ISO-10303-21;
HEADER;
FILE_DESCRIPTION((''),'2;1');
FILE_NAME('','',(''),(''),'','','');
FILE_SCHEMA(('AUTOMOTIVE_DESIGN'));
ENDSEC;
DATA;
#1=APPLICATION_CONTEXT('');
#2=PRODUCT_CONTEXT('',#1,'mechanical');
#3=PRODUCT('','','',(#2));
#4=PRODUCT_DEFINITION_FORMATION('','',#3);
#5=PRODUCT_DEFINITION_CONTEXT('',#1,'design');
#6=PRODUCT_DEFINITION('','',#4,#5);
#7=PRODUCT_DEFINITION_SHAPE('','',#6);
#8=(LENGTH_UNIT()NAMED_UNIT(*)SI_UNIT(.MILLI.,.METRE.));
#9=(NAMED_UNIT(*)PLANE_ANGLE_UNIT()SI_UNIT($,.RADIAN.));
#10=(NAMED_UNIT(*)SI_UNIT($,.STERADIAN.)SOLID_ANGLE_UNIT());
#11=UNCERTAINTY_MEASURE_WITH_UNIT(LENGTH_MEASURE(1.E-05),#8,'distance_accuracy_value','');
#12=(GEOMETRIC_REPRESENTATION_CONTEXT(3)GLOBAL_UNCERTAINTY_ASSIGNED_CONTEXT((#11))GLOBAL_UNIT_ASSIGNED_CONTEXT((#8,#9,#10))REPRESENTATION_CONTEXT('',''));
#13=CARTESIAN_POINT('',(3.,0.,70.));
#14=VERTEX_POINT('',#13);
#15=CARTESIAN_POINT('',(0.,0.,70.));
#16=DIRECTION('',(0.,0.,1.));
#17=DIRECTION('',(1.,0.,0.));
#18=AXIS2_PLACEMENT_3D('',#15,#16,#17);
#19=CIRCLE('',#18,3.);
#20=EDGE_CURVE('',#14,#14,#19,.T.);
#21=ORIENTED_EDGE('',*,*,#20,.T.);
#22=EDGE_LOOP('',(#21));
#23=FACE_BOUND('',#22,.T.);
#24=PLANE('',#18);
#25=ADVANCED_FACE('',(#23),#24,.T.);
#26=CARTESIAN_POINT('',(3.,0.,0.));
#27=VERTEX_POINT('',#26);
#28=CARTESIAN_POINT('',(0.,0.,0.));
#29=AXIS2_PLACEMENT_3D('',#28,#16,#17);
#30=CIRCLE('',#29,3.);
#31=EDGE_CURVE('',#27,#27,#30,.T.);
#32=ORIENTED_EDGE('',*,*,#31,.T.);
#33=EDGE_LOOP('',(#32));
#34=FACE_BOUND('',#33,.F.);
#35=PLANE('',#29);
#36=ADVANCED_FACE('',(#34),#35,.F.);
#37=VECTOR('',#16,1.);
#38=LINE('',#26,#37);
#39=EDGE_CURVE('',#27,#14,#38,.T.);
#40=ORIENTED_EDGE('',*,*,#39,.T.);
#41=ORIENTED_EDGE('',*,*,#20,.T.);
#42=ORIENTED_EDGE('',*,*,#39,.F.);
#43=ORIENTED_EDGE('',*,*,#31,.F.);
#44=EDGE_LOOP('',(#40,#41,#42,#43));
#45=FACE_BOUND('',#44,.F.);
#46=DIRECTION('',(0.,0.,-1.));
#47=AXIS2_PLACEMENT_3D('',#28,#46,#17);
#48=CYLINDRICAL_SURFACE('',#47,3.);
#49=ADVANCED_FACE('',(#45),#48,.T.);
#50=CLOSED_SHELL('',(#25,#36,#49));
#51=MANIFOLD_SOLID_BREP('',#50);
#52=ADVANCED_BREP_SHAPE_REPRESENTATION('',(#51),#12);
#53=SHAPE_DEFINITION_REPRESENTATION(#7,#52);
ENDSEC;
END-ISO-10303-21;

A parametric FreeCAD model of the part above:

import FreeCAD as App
import Part
import Sketcher

doc = App.newDocument("Part")
body = doc.addObject("PartDesign::Body", "Body")

# Sketch on XY plane
sketch1 = body.newObject("Sketcher::SketchObject", "Sketch")
sketch1.AttachmentSupport = (doc.getObject("XY_Plane"), [""])
sketch1.MapMode = "FlatFace"
sketch1.addGeometry(Part.Circle(App.Vector(0, 0, 0), App.Vector(0, 0, 1), 3), False)
sketch1.addConstraint(Sketcher.Constraint("Coincident", 0, 3, -1, 1))
sketch1.addConstraint(Sketcher.Constraint("Diameter", 0, 6.0))
pad1 = body.newObject("PartDesign::Pad", "Pad")
pad1.Profile = sketch1
pad1.Length = 70

doc.recompute()
